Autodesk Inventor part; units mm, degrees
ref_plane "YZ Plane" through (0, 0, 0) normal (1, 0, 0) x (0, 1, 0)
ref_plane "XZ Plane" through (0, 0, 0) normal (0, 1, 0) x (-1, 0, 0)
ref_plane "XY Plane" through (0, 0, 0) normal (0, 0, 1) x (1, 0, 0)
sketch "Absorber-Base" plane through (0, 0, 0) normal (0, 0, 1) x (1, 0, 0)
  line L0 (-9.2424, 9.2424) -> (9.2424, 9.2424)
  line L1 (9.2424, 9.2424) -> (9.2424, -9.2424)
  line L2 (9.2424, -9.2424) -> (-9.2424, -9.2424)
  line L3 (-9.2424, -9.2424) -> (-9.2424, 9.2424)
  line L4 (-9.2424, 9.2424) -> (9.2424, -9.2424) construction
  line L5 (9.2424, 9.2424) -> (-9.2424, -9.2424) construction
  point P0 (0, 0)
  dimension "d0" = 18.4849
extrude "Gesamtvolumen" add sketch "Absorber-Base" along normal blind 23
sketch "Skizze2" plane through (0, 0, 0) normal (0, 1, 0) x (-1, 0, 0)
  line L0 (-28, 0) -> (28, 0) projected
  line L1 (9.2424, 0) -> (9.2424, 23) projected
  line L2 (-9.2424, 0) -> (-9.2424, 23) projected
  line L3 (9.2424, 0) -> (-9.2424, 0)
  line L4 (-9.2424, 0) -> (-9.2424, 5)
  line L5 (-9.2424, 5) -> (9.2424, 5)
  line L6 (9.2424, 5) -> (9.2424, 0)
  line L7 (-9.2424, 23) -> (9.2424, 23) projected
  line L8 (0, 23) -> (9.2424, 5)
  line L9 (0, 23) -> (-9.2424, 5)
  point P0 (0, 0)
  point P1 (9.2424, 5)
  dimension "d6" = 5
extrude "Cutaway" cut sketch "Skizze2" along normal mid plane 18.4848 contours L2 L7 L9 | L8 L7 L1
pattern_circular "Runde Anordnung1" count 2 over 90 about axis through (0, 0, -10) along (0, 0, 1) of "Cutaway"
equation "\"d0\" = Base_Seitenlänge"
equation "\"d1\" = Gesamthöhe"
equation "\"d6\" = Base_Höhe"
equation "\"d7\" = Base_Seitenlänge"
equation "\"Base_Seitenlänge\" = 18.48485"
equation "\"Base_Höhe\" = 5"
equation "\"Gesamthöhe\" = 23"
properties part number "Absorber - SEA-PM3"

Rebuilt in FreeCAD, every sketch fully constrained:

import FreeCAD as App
import Part
import Sketcher
from FreeCAD import Vector
Q = App.Units.Quantity


def add_polygon(sketch, points):
    """Adds a closed chain of lines whose ends are joined by coincident constraints."""
    first, n = sketch.GeometryCount, len(points)
    for a, b in zip(points, points[1:] + points[:1]):
        sketch.addGeometry(Part.LineSegment(App.Vector(*a, 0), App.Vector(*b, 0)), False)
    for i in range(n):
        sketch.addConstraint(Sketcher.Constraint("Coincident", first + i, 2, first + (i + 1) % n, 1))

doc = App.newDocument("Part")
body = doc.addObject("PartDesign::Body", "Body")

sketch1 = body.newObject("Sketcher::SketchObject", "Sketch")
sketch1.AttachmentSupport = (doc.getObject("XY_Plane"), [""])
sketch1.MapMode = "FlatFace"
add_polygon(sketch1, [(9.2424, 9.2424), (-9.2424, 9.2424), (-9.2424, -9.2424), (9.2424, -9.2424)])
sketch1.addConstraint([
    Sketcher.Constraint("Horizontal", 0),
    Sketcher.Constraint("Vertical", 1),
    Sketcher.Constraint("Horizontal", 2),
    Sketcher.Constraint("Vertical", 3),
    Sketcher.Constraint("Symmetric", 0, 2, 2, 2, -1, 1),
    Sketcher.Constraint("Equal", 2, 1),
    Sketcher.Constraint("DistanceX", 0, 2, 0, 1, Q("18.4848 mm")),
])
pad1 = body.newObject("PartDesign::Pad", "Pad")
pad1.Profile = sketch1
pad1.Length = 23

sketch2 = body.newObject("Sketcher::SketchObject", "Sketch001")
sketch2.AttachmentSupport = (doc.getObject("XZ_Plane"), [""])
sketch2.MapMode = "FlatFace"
add_polygon(sketch2, [(9.2424, 23), (9.2424, 5), (0, 23)])
add_polygon(sketch2, [(0, 23), (-9.2424, 5), (-9.2424, 23)])
sketch2.addConstraint([
    Sketcher.Constraint("Vertical", 0),
    Sketcher.Constraint("Horizontal", 2),
    Sketcher.Constraint("Vertical", 4),
    Sketcher.Constraint("Horizontal", 5),
    Sketcher.Constraint("Coincident", 5, 2, 1, 2),
    Sketcher.Constraint("Symmetric", 0, 2, 3, 2, -2),
    Sketcher.Constraint("PointOnObject", 1, 2, -2),
    Sketcher.Constraint("DistanceY", -1, 1, 0, 2, Q("5 mm")),
    Sketcher.Constraint("DistanceY", 0, 2, 0, 1, Q("18 mm")),
    Sketcher.Constraint("Angle", 1, Q("117.179 deg")),
])
pocket1 = body.newObject("PartDesign::Pocket", "Pocket")
pocket1.Profile = sketch2
pocket1.Length = 18.4848
pocket1.Midplane = True
doc.recompute()

polarpattern = body.newObject("PartDesign::PolarPattern", "PolarPattern")
polarpattern.Originals = [pocket1]
polarpattern.Axis = (doc.getObject("Z_Axis"), [""])
polarpattern.Angle = 90
polarpattern.Occurrences = 2
body.Tip = polarpattern

doc.recompute()
